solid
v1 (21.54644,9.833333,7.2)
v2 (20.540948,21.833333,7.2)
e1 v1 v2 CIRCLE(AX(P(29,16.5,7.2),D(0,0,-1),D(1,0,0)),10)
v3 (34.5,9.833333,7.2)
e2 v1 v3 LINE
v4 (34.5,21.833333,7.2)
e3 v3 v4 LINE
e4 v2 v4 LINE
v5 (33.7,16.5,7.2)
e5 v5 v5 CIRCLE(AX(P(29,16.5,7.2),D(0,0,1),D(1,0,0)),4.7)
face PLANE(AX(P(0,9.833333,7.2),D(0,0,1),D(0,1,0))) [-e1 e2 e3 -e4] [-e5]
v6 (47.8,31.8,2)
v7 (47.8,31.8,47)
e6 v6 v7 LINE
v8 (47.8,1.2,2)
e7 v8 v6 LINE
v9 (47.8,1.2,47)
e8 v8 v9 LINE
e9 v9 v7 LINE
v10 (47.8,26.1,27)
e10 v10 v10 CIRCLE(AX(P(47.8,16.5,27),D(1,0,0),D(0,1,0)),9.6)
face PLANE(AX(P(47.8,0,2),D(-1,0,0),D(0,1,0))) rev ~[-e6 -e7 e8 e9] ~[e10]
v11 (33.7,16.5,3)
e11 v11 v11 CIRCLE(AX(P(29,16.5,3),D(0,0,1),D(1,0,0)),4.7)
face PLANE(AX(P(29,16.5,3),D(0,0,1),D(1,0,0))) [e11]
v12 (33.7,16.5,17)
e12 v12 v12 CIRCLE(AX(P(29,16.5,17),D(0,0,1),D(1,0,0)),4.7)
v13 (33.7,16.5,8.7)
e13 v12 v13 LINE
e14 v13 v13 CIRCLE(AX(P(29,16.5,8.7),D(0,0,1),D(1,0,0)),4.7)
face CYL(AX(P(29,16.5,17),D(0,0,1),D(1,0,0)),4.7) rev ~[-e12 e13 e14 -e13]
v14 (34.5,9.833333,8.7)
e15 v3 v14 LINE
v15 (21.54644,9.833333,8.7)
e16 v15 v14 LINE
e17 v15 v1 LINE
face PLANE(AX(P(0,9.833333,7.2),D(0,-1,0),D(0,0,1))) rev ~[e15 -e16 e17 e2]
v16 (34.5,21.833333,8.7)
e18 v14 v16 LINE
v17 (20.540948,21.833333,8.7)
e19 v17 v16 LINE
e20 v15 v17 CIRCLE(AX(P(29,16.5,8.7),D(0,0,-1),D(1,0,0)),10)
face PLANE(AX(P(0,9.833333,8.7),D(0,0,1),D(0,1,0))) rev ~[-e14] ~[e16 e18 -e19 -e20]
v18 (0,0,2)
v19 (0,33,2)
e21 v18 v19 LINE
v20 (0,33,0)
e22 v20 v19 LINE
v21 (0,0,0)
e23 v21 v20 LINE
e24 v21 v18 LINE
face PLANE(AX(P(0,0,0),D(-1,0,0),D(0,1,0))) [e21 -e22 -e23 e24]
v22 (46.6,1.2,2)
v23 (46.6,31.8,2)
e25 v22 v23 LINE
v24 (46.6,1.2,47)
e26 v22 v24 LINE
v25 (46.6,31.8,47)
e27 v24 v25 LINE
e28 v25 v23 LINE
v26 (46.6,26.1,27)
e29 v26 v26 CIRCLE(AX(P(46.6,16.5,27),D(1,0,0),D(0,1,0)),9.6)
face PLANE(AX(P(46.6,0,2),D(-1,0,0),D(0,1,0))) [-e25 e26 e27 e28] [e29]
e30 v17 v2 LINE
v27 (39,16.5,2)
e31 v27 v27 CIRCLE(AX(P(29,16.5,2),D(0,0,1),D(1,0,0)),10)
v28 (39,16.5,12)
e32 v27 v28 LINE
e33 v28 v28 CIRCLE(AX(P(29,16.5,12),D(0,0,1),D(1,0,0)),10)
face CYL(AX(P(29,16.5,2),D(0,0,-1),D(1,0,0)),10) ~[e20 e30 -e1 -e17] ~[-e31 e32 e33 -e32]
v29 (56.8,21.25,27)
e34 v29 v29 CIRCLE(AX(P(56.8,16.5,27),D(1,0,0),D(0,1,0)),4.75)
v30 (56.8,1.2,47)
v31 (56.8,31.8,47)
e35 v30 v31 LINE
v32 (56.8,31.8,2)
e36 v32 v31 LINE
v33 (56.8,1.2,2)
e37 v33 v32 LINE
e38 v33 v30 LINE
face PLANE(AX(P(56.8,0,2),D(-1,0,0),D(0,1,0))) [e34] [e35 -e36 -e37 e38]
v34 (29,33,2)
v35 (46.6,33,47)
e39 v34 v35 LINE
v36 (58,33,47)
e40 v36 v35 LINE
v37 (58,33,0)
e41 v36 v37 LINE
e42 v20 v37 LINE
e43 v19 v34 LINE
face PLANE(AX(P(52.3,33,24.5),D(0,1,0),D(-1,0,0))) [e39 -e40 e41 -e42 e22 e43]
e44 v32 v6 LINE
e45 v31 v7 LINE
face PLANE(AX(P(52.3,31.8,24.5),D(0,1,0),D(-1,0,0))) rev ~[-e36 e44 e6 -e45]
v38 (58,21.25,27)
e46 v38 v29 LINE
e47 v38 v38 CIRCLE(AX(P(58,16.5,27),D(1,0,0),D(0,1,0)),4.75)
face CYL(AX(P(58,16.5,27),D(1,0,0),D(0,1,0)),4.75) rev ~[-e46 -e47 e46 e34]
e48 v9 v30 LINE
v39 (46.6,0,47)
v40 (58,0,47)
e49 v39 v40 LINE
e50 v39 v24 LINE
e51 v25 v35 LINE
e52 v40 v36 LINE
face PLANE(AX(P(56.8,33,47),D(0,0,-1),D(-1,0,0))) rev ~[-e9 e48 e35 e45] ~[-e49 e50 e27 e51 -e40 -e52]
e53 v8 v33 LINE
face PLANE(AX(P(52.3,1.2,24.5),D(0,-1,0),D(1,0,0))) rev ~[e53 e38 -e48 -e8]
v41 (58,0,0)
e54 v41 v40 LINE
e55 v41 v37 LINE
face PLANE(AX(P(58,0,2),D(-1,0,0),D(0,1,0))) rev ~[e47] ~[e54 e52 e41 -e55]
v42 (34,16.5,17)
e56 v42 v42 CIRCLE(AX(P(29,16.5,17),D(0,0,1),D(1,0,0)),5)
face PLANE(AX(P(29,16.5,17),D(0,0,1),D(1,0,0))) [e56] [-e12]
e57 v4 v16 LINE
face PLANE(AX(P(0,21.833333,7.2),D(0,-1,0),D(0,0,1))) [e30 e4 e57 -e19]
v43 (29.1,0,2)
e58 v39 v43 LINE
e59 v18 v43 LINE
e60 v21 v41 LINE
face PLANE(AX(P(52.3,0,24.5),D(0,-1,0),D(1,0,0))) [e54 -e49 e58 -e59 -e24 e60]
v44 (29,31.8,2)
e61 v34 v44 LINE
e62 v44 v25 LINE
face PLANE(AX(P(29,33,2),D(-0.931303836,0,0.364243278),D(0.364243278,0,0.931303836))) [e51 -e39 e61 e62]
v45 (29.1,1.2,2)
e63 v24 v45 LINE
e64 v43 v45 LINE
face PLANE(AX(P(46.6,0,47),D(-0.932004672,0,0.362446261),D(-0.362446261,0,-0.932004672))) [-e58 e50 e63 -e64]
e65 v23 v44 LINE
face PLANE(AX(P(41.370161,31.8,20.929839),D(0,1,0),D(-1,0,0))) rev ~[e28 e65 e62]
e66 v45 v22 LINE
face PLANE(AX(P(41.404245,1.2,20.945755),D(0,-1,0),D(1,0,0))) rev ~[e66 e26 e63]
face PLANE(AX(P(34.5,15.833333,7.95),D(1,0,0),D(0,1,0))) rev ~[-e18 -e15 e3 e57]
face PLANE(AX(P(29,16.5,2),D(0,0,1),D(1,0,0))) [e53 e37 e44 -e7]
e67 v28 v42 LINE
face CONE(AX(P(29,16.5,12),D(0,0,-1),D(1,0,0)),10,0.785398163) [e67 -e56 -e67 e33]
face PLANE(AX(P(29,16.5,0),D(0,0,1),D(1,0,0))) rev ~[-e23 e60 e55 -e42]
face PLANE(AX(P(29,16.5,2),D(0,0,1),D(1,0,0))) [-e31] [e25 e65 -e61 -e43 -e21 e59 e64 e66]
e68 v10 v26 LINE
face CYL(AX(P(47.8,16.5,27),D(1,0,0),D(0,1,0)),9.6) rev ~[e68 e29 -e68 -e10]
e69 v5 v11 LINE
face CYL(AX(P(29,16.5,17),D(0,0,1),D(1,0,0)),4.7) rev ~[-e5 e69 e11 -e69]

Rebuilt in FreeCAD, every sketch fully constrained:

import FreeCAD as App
import Part
import Sketcher
Q = App.Units.Quantity


def edges_at(feature, points):
    """Names of the edges that pass closest to the given points."""
    edges = feature.Shape.Edges
    near = lambda p: min(range(len(edges)), key=lambda i: edges[i].distToShape(Part.Vertex(*p))[0])
    return sorted({f"Edge{near(p) + 1}" for p in points})


def add_polygon(sketch, points):
    """Adds a closed chain of lines whose ends are joined by coincident constraints."""
    first, n = sketch.GeometryCount, len(points)
    for a, b in zip(points, points[1:] + points[:1]):
        sketch.addGeometry(Part.LineSegment(App.Vector(*a, 0), App.Vector(*b, 0)), False)
    for i in range(n):
        sketch.addConstraint(Sketcher.Constraint("Coincident", first + i, 2, first + (i + 1) % n, 1))

doc = App.newDocument("Part")
body = doc.addObject("PartDesign::Body", "Body")

# Sketch on XY plane
sketch1 = doc.addObject("Sketcher::SketchObject", "Sketch")
body.addObject(sketch1)
sketch1.AttachmentSupport = (doc.XY_Plane, [""])
sketch1.MapMode = "FlatFace"
add_polygon(sketch1, [(0, 33), (0, 0), (58, 0), (58, 33)])  # lines 0-3
sketch1.addConstraint([
    Sketcher.Constraint("Vertical", 0),
    Sketcher.Constraint("Horizontal", 1),
    Sketcher.Constraint("Vertical", 2),
    Sketcher.Constraint("Horizontal", 3),
    Sketcher.Constraint("Coincident", 0, 2, -1, 1),
    Sketcher.Constraint("DistanceX", 1, 1, 1, 2, Q("58 mm")),
    Sketcher.Constraint("DistanceY", 0, 2, 0, 1, Q("33 mm")),
])
pad1 = doc.addObject("PartDesign::Pad", "Pad")
body.addObject(pad1)
pad1.Profile = sketch1
pad1.Length = 2

# Sketch on XY plane
sketch2 = doc.addObject("Sketcher::SketchObject", "Sketch001")
body.addObject(sketch2)
sketch2.AttachmentSupport = (doc.XY_Plane, [""])
sketch2.MapMode = "FlatFace"
sketch2.AttachmentOffset = App.Placement(App.Vector(0, 0, 2), App.Rotation())
sketch2.addGeometry(Part.Circle(App.Vector(29, 16, 0), App.Vector(0, 0, 1), 10), False)
sketch2.addConstraint([
    Sketcher.Constraint("Diameter", 0, Q("20 mm")),
    Sketcher.Constraint("DistanceX", -1, 1, 0, 3, Q("29 mm")),
    Sketcher.Constraint("DistanceY", -1, 1, 0, 3, Q("16.5 mm")),
])
pad2 = doc.addObject("PartDesign::Pad", "Pad001")
body.addObject(pad2)
pad2.Profile = sketch2
pad2.Length = 15

# Sketch on XY plane
sketch3 = doc.addObject("Sketcher::SketchObject", "Sketch002")
body.addObject(sketch3)
sketch3.AttachmentSupport = (doc.XY_Plane, [""])
sketch3.MapMode = "FlatFace"
sketch3.AttachmentOffset = App.Placement(App.Vector(0, 0, 17), App.Rotation())
sketch3.addGeometry(Part.Circle(App.Vector(29, 16.5, 0), App.Vector(0, 0, 1), 4.7), False)
sketch3.addConstraint([
    Sketcher.Constraint("Diameter", 0, Q("9.4 mm")),
    Sketcher.Constraint("DistanceX", -1, 1, 0, 3, Q("29 mm")),
    Sketcher.Constraint("DistanceY", -1, 1, 0, 3, Q("16.5 mm")),
])
pocket1 = doc.addObject("PartDesign::Pocket", "Pocket")
body.addObject(pocket1)
pocket1.Profile = sketch3
pocket1.Length = 14

# Sketch on YZ plane
sketch4 = doc.addObject("Sketcher::SketchObject", "Sketch003")
body.addObject(sketch4)
sketch4.AttachmentSupport = (doc.YZ_Plane, [""])
sketch4.MapMode = "FlatFace"
add_polygon(sketch4, [(9.8, 8.7), (9.8, 7.2), (21.8, 7.2), (21.8, 8.7)])  # lines 0-3
sketch4.addConstraint([
    Sketcher.Constraint("Vertical", 0),
    Sketcher.Constraint("Horizontal", 1),
    Sketcher.Constraint("Vertical", 2),
    Sketcher.Constraint("Horizontal", 3),
    Sketcher.Constraint("DistanceX", 1, 1, 1, 2, Q("12 mm")),
    Sketcher.Constraint("DistanceY", 0, 2, 0, 1, Q("1.5 mm")),
    Sketcher.Constraint("DistanceY", -1, 1, 0, 2, Q("7.2 mm")),
    Sketcher.Constraint("DistanceX", -1, 1, 0, 2, Q("9.833333 mm")),
])
pocket2 = doc.addObject("PartDesign::Pocket", "Pocket001")
body.addObject(pocket2)
pocket2.Profile = sketch4
pocket2.Length = 34.5
pocket2.Reversed = True

# Sketch on XY plane
sketch5 = doc.addObject("Sketcher::SketchObject", "Sketch004")
body.addObject(sketch5)
sketch5.AttachmentSupport = (doc.XY_Plane, [""])
sketch5.MapMode = "FlatFace"
sketch5.AttachmentOffset = App.Placement(App.Vector(0, 0, 2), App.Rotation())
add_polygon(sketch5, [(56.8, 33), (56.8, 0), (58, 0), (58, 33)])  # lines 0-3
sketch5.addConstraint([
    Sketcher.Constraint("Vertical", 0),
    Sketcher.Constraint("Horizontal", 1),
    Sketcher.Constraint("Vertical", 2),
    Sketcher.Constraint("Horizontal", 3),
    Sketcher.Constraint("PointOnObject", 0, 2, -1),
    Sketcher.Constraint("DistanceY", 0, 2, 0, 1, Q("33 mm")),
    Sketcher.Constraint("DistanceX", 1, 1, 1, 2, Q("1.2 mm")),
    Sketcher.Constraint("DistanceX", -1, 1, 1, 2, Q("58 mm")),
])
pad3 = doc.addObject("PartDesign::Pad", "Pad002")
body.addObject(pad3)
pad3.Profile = sketch5
pad3.Length = 45

# Sketch on YZ plane
sketch6 = doc.addObject("Sketcher::SketchObject", "Sketch005")
body.addObject(sketch6)
sketch6.AttachmentSupport = (doc.YZ_Plane, [""])
sketch6.MapMode = "FlatFace"
sketch6.AttachmentOffset = App.Placement(App.Vector(0, 0, 58), App.Rotation())
sketch6.addGeometry(Part.Circle(App.Vector(16.5, 27, 0), App.Vector(0, 0, 1), 4.8), False)
sketch6.addConstraint([
    Sketcher.Constraint("Diameter", 0, Q("9.5 mm")),
    Sketcher.Constraint("DistanceY", -1, 1, 0, 3, Q("27 mm")),
    Sketcher.Constraint("DistanceX", -1, 1, 0, 3, Q("16.5 mm")),
])
pocket3 = doc.addObject("PartDesign::Pocket", "Pocket002")
body.addObject(pocket3)
pocket3.Profile = sketch6
pocket3.Length = 20

# Sketch on XY plane
sketch7 = doc.addObject("Sketcher::SketchObject", "Sketch006")
body.addObject(sketch7)
sketch7.AttachmentSupport = (doc.XY_Plane, [""])
sketch7.MapMode = "FlatFace"
sketch7.AttachmentOffset = App.Placement(App.Vector(0, 0, 2), App.Rotation())
add_polygon(sketch7, [(46.6, 33), (46.6, 0), (47.8, 0), (47.8, 33)])  # lines 0-3
sketch7.addConstraint([
    Sketcher.Constraint("Vertical", 0),
    Sketcher.Constraint("Horizontal", 1),
    Sketcher.Constraint("Vertical", 2),
    Sketcher.Constraint("Horizontal", 3),
    Sketcher.Constraint("PointOnObject", 0, 2, -1),
    Sketcher.Constraint("DistanceY", 0, 2, 0, 1, Q("33 mm")),
    Sketcher.Constraint("DistanceX", 1, 1, 1, 2, Q("1.2 mm")),
    Sketcher.Constraint("DistanceX", -1, 1, 0, 2, Q("46.6 mm")),
])
pad4 = doc.addObject("PartDesign::Pad", "Pad003")
body.addObject(pad4)
pad4.Profile = sketch7
pad4.Length = 45

# Sketch on YZ plane
sketch8 = doc.addObject("Sketcher::SketchObject", "Sketch007")
body.addObject(sketch8)
sketch8.AttachmentSupport = (doc.YZ_Plane, [""])
sketch8.MapMode = "FlatFace"
sketch8.AttachmentOffset = App.Placement(App.Vector(0, 0, 47.8), App.Rotation())
sketch8.addGeometry(Part.Circle(App.Vector(16, 27, 0), App.Vector(0, 0, 1), 10), False)
sketch8.addConstraint([
    Sketcher.Constraint("Diameter", 0, Q("19.2 mm")),
    Sketcher.Constraint("DistanceY", -1, 1, 0, 3, Q("27 mm")),
    Sketcher.Constraint("DistanceX", -1, 1, 0, 3, Q("16.5 mm")),
])
pocket4 = doc.addObject("PartDesign::Pocket", "Pocket003")
body.addObject(pocket4)
pocket4.Profile = sketch8
pocket4.Length = 10

# Sketch on XZ plane
sketch9 = doc.addObject("Sketcher::SketchObject", "Sketch008")
body.addObject(sketch9)
sketch9.AttachmentSupport = (doc.XZ_Plane, [""])
sketch9.MapMode = "FlatFace"
add_polygon(sketch9, [(47, 2), (47, 47), (29, 2)])  # lines 0-2
sketch9.addConstraint([
    Sketcher.Constraint("Vertical", 0),
    Sketcher.Constraint("Horizontal", 2),
    Sketcher.Constraint("DistanceY", 0, 1, 0, 2, Q("45 mm")),
    Sketcher.Constraint("DistanceX", 2, 1, 2, 2, Q("17.5 mm")),
    Sketcher.Constraint("DistanceY", -1, 1, 0, 2, Q("47 mm")),
    Sketcher.Constraint("DistanceX", -1, 1, 0, 2, Q("46.6 mm")),
])
pad5 = doc.addObject("PartDesign::Pad", "Pad004")
body.addObject(pad5)
pad5.Profile = sketch9
pad5.Length = 1.2
pad5.Reversed = True

# Sketch on XZ plane
sketch10 = doc.addObject("Sketcher::SketchObject", "Sketch009")
body.addObject(sketch10)
sketch10.AttachmentSupport = (doc.XZ_Plane, [""])
sketch10.MapMode = "FlatFace"
sketch10.AttachmentOffset = App.Placement(App.Vector(0, 0, -33), App.Rotation())
add_polygon(sketch10, [(29, 2), (47, 47), (47, 2)])  # lines 0-2
sketch10.addConstraint([
    Sketcher.Constraint("Vertical", 1),
    Sketcher.Constraint("Horizontal", 2),
    Sketcher.Constraint("DistanceY", 1, 2, 1, 1, Q("45 mm")),
    Sketcher.Constraint("DistanceX", 2, 2, 2, 1, Q("17.6 mm")),
    Sketcher.Constraint("DistanceY", -1, 1, 0, 2, Q("47 mm")),
    Sketcher.Constraint("DistanceX", -1, 1, 2, 2, Q("29 mm")),
])
pad6 = doc.addObject("PartDesign::Pad", "Pad005")
body.addObject(pad6)
pad6.Profile = sketch10
pad6.Length = 1.2

# Sketch on XZ plane
sketch11 = doc.addObject("Sketcher::SketchObject", "Sketch010")
body.addObject(sketch11)
sketch11.AttachmentSupport = (doc.XZ_Plane, [""])
sketch11.MapMode = "FlatFace"
add_polygon(sketch11, [(48, 47), (48, 2), (57, 2), (57, 47)])  # lines 0-3
sketch11.addConstraint([
    Sketcher.Constraint("Vertical", 0),
    Sketcher.Constraint("Horizontal", 1),
    Sketcher.Constraint("Vertical", 2),
    Sketcher.Constraint("Horizontal", 3),
    Sketcher.Constraint("DistanceX", 1, 1, 1, 2, Q("9 mm")),
    Sketcher.Constraint("DistanceY", 0, 2, 0, 1, Q("45 mm")),
    Sketcher.Constraint("DistanceY", -1, 1, 0, 2, Q("2 mm")),
    Sketcher.Constraint("DistanceX", -1, 1, 0, 2, Q("47.8 mm")),
])
pad7 = doc.addObject("PartDesign::Pad", "Pad006")
body.addObject(pad7)
pad7.Profile = sketch11
pad7.Length = 1.2
pad7.Reversed = True

# Sketch on XZ plane
sketch12 = doc.addObject("Sketcher::SketchObject", "Sketch011")
body.addObject(sketch12)
sketch12.AttachmentSupport = (doc.XZ_Plane, [""])
sketch12.MapMode = "FlatFace"
sketch12.AttachmentOffset = App.Placement(App.Vector(0, 0, -33), App.Rotation())
add_polygon(sketch12, [(57, 47), (57, 2), (48, 2), (48, 47)])  # lines 0-3
sketch12.addConstraint([
    Sketcher.Constraint("Vertical", 0),
    Sketcher.Constraint("Horizontal", 1),
    Sketcher.Constraint("Vertical", 2),
    Sketcher.Constraint("Horizontal", 3),
    Sketcher.Constraint("DistanceX", 1, 2, 1, 1, Q("9 mm")),
    Sketcher.Constraint("DistanceY", 0, 2, 0, 1, Q("45 mm")),
    Sketcher.Constraint("DistanceY", -1, 1, 0, 2, Q("2 mm")),
    Sketcher.Constraint("DistanceX", -1, 1, 0, 2, Q("56.8 mm")),
])
pad8 = doc.addObject("PartDesign::Pad", "Pad007")
body.addObject(pad8)
pad8.Profile = sketch12
pad8.Length = 1.2
doc.recompute()

chamfer = doc.addObject("PartDesign::Chamfer", "Chamfer")
body.addObject(chamfer)
chamfer.Base = (pad8, edges_at(pad8, [(19, 16.5, 17)]))
chamfer.Size = 5

doc.recompute()
